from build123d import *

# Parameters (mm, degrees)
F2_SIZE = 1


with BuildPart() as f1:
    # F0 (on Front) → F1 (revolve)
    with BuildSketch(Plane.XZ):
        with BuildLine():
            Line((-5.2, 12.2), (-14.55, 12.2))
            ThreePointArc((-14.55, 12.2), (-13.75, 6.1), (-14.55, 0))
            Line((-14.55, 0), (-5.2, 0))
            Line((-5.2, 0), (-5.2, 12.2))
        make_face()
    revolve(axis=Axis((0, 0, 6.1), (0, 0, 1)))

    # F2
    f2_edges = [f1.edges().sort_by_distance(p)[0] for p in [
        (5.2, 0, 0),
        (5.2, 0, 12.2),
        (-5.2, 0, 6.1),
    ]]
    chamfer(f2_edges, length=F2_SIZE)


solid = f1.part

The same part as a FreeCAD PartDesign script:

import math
import FreeCAD as App
import Part
import Sketcher


def edges_at(feature, points):
    """Names of the edges that pass closest to the given points."""
    edges = feature.Shape.Edges
    near = lambda p: min(range(len(edges)), key=lambda i: edges[i].distToShape(Part.Vertex(*p))[0])
    return sorted({f"Edge{near(p) + 1}" for p in points})

doc = App.newDocument("Part")
body = doc.addObject("PartDesign::Body", "Body")

# Sketch on XZ plane
sketch1 = doc.addObject("Sketcher::SketchObject", "Sketch")
body.addObject(sketch1)
sketch1.AttachmentSupport = (doc.XZ_Plane, [""])
sketch1.MapMode = "FlatFace"
sketch1.addGeometry([
    Part.LineSegment(App.Vector(-5, 12, 0), App.Vector(-15, 12, 0)),
    Part.ArcOfCircle(Part.Circle(App.Vector(-37, 6, 0), App.Vector(0, 0, 1), 24), math.radians(-15), math.radians(15)),
    Part.LineSegment(App.Vector(-15, 0, 0), App.Vector(-5, 0, 0)),
    Part.LineSegment(App.Vector(-5, 0, 0), App.Vector(-5, 12, 0)),
], False)
sketch1.addConstraint([
    Sketcher.Constraint("Coincident", 0, 2, 1, 2),
    Sketcher.Constraint("Coincident", 1, 1, 2, 1),
    Sketcher.Constraint("Coincident", 2, 2, 3, 1),
    Sketcher.Constraint("Coincident", 3, 2, 0, 1),
    Sketcher.Constraint("Horizontal", 0),
    Sketcher.Constraint("Horizontal", 2),
    Sketcher.Constraint("Vertical", 3),
    Sketcher.Constraint("PointOnObject", 1, 1, -1),
    Sketcher.Constraint("Vertical", 0, 2, 1, 1),
    Sketcher.Constraint("DistanceY", 3, 1, 3, 2, 12.2),
    Sketcher.Constraint("DistanceX", 0, 2, 0, 1, 9.35),
    Sketcher.Constraint("DistanceX", 2, 2, -1, 1, 5.2),
    Sketcher.Constraint("Radius", 1, 23.65625),
])
revolution = doc.addObject("PartDesign::Revolution", "Revolution")
body.addObject(revolution)
revolution.Profile = sketch1
revolution.ReferenceAxis = (sketch1, ["V_Axis"])
revolution.Angle = 360
doc.recompute()

chamfer = doc.addObject("PartDesign::Chamfer", "Chamfer")
body.addObject(chamfer)
chamfer.Base = (revolution, edges_at(revolution, [(5.2, 0, 0), (5.2, 0, 12.2), (-5.2, 0, 6.1)]))
chamfer.Size = 1

doc.recompute()
